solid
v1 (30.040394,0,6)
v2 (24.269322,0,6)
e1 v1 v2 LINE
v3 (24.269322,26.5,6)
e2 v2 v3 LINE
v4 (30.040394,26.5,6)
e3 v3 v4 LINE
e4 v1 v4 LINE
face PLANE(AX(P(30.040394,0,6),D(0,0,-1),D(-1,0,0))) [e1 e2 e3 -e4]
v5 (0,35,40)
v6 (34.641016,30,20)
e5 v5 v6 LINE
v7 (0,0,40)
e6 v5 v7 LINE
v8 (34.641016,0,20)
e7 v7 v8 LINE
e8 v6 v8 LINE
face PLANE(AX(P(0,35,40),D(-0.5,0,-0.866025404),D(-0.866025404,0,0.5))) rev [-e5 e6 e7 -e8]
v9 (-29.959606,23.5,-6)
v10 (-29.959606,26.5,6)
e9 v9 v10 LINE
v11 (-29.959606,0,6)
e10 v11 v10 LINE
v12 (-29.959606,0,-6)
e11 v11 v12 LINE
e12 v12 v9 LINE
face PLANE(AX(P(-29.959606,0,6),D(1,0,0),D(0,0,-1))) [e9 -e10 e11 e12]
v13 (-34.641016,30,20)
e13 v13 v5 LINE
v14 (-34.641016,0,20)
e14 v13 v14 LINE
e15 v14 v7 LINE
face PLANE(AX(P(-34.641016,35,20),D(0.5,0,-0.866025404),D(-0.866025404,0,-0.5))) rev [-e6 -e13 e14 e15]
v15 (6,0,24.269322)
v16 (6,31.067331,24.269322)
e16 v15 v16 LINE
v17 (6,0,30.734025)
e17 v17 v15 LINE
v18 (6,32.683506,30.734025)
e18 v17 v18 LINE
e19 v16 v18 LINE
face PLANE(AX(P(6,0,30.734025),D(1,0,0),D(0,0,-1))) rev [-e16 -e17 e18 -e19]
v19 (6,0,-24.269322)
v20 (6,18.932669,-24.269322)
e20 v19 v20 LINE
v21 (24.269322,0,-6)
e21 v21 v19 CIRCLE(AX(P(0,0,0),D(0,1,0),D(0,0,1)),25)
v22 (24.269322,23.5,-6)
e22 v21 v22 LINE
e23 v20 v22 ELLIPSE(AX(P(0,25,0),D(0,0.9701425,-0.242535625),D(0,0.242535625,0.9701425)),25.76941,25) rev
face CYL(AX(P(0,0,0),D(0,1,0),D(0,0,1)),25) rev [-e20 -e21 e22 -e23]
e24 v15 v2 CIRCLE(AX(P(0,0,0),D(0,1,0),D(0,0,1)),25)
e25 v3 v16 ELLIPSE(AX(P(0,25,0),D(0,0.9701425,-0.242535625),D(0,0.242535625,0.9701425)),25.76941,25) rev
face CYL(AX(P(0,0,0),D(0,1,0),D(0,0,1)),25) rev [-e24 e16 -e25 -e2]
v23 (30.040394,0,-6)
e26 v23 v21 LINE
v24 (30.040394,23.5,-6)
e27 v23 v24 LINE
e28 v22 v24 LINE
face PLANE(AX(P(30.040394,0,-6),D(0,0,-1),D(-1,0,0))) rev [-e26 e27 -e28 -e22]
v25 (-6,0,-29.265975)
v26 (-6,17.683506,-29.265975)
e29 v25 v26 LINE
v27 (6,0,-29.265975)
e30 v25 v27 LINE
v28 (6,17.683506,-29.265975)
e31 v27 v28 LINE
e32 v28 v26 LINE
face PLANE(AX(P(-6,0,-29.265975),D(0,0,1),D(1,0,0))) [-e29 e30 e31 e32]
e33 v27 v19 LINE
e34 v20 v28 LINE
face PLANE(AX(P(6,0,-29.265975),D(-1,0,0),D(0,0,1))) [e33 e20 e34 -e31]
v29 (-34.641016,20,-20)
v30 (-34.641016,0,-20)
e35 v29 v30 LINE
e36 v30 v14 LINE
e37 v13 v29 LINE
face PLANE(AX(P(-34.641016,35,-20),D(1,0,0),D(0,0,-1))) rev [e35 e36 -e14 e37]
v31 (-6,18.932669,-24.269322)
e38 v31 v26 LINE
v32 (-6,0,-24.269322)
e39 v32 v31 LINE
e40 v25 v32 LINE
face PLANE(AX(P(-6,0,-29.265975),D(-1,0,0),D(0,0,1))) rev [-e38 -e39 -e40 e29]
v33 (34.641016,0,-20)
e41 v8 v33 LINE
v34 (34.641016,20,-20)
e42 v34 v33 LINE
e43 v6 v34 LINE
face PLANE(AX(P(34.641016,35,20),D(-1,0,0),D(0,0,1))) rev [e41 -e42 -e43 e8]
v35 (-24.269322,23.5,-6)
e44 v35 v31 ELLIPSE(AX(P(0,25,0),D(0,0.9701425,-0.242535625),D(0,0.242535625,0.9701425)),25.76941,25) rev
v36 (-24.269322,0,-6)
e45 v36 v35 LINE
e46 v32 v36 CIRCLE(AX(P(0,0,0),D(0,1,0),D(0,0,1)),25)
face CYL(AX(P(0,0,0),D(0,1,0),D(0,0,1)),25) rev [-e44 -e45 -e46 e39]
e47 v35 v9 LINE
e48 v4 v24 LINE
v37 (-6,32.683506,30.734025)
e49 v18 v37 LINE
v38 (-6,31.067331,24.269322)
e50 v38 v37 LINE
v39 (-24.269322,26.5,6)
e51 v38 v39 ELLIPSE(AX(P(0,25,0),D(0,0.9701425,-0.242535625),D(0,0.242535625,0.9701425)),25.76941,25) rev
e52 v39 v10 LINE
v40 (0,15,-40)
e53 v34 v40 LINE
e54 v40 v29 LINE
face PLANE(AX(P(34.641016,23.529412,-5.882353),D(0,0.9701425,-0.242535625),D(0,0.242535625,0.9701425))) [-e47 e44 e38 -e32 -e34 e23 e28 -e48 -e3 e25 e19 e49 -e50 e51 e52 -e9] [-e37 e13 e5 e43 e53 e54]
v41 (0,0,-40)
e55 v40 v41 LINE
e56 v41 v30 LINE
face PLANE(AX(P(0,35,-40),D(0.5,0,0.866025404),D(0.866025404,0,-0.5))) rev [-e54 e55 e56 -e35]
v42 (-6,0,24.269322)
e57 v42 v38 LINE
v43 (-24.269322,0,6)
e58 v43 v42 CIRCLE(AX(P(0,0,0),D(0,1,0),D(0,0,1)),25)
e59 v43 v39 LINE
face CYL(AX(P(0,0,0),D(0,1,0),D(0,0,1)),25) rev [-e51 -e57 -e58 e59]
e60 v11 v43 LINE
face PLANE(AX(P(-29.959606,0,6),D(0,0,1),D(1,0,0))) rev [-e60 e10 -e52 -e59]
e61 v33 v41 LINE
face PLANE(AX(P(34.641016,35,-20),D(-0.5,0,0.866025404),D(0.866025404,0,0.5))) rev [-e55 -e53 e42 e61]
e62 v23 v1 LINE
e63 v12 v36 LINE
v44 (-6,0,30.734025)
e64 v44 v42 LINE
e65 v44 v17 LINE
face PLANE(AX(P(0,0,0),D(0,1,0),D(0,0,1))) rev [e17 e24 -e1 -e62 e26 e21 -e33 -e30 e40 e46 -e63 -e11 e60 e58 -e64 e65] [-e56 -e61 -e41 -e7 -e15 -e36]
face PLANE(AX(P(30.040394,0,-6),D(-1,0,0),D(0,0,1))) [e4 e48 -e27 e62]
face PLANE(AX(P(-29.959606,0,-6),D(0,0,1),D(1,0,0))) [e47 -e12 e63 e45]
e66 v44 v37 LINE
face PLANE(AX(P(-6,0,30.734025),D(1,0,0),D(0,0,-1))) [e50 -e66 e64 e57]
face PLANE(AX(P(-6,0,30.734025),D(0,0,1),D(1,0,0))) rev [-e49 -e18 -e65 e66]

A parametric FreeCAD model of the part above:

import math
import FreeCAD as App
import Part
import Sketcher
from FreeCAD import Vector
Q = App.Units.Quantity


def add_polygon(sketch, points):
    """Adds a closed chain of lines whose ends are joined by coincident constraints."""
    first, n = sketch.GeometryCount, len(points)
    for a, b in zip(points, points[1:] + points[:1]):
        sketch.addGeometry(Part.LineSegment(App.Vector(*a, 0), App.Vector(*b, 0)), False)
    for i in range(n):
        sketch.addConstraint(Sketcher.Constraint("Coincident", first + i, 2, first + (i + 1) % n, 1))

doc = App.newDocument("Part")
body = doc.addObject("PartDesign::Body", "Body")

sketch1 = doc.addObject("Sketcher::SketchObject", "Sketch")
body.addObject(sketch1)
sketch1.AttachmentSupport = (doc.XZ_Plane, [""])
sketch1.MapMode = "FlatFace"
add_polygon(sketch1, [(0, -40), (-35, -20), (-35, 20), (0, 40), (35, 20), (35, -20)])
sketch1.addConstraint(Sketcher.Constraint("Vertical", 1))
sketch1.addConstraint(Sketcher.Constraint("Vertical", 4))
sketch1.addConstraint(Sketcher.Constraint("Symmetric", 0, 2, 3, 2, -1, 1))
sketch1.addConstraint(Sketcher.Constraint("Symmetric", 2, 2, 5, 2, -1, 1))
sketch1.addConstraint(Sketcher.Constraint("PointOnObject", 2, 2, -2))
sketch1.addConstraint(Sketcher.Constraint("Parallel", 2, 5))
sketch1.addConstraint(Sketcher.Constraint("Horizontal", 1, 2, 3, 2))
sketch1.addConstraint(Sketcher.Constraint("DistanceY", 1, 1, 1, 2, 40.0))
sketch1.addConstraint(Sketcher.Constraint("Angle", 0, Q("150 deg")))
sketch1.addConstraint(Sketcher.Constraint("Distance", 0, 40.0))
pad1 = doc.addObject("PartDesign::Pad", "Pad")
body.addObject(pad1)
pad1.Profile = sketch1
pad1.Length = 35
pad1.Reversed = True

sketch2 = doc.addObject("Sketcher::SketchObject", "Sketch001")
body.addObject(sketch2)
sketch2.AttachmentSupport = (doc.XZ_Plane, [""])
sketch2.MapMode = "FlatFace"
sketch2.AttachmentOffset = App.Placement(Vector(0, 0, -35), App.Rotation())
sketch2.addGeometry(Part.LineSegment(Vector(6, -29.3, 0), Vector(-6, -29.3, 0)), False)
sketch2.addGeometry(Part.LineSegment(Vector(-6, -29.3, 0), Vector(-6, -24.3, 0)), False)
sketch2.addGeometry(Part.ArcOfCircle(Part.Circle(Vector(0, 0, 0), Vector(0, 0, 1), 25), math.radians(-166), math.radians(-104)), False)
sketch2.addGeometry(Part.LineSegment(Vector(-24.3, -6, 0), Vector(-30, -6, 0)), False)
sketch2.addGeometry(Part.LineSegment(Vector(-30, -6, 0), Vector(-30, 6, 0)), False)
sketch2.addGeometry(Part.LineSegment(Vector(-30, 6, 0), Vector(-24.3, 6, 0)), False)
sketch2.addGeometry(Part.ArcOfCircle(Part.Circle(Vector(0, 0, 0), Vector(0, 0, 1), 25), math.radians(104), math.radians(166)), False)
sketch2.addGeometry(Part.LineSegment(Vector(-6, 24.3, 0), Vector(-6, 30.7, 0)), False)
sketch2.addGeometry(Part.LineSegment(Vector(-6, 30.7, 0), Vector(6, 30.7, 0)), False)
sketch2.addGeometry(Part.LineSegment(Vector(6, 30.7, 0), Vector(6, 24.3, 0)), False)
sketch2.addGeometry(Part.ArcOfCircle(Part.Circle(Vector(0, 0, 0), Vector(0, 0, 1), 25), math.radians(14), math.radians(76)), False)
sketch2.addGeometry(Part.LineSegment(Vector(24.3, 6, 0), Vector(30, 6, 0)), False)
sketch2.addGeometry(Part.LineSegment(Vector(30, 6, 0), Vector(30, -6, 0)), False)
sketch2.addGeometry(Part.LineSegment(Vector(30, -6, 0), Vector(24.3, -6, 0)), False)
sketch2.addGeometry(Part.ArcOfCircle(Part.Circle(Vector(0, 0, 0), Vector(0, 0, 1), 25), math.radians(-76), math.radians(-14)), False)
sketch2.addGeometry(Part.LineSegment(Vector(6, -24.3, 0), Vector(6, -29.3, 0)), False)
sketch2.addConstraint(Sketcher.Constraint("Coincident", 0, 2, 1, 1))
sketch2.addConstraint(Sketcher.Constraint("Coincident", 1, 2, 2, 2))
sketch2.addConstraint(Sketcher.Constraint("Coincident", 2, 1, 3, 1))
sketch2.addConstraint(Sketcher.Constraint("Coincident", 3, 2, 4, 1))
sketch2.addConstraint(Sketcher.Constraint("Coincident", 4, 2, 5, 1))
sketch2.addConstraint(Sketcher.Constraint("Coincident", 5, 2, 6, 2))
sketch2.addConstraint(Sketcher.Constraint("Coincident", 6, 1, 7, 1))
sketch2.addConstraint(Sketcher.Constraint("Coincident", 7, 2, 8, 1))
sketch2.addConstraint(Sketcher.Constraint("Coincident", 8, 2, 9, 1))
sketch2.addConstraint(Sketcher.Constraint("Coincident", 9, 2, 10, 2))
sketch2.addConstraint(Sketcher.Constraint("Coincident", 10, 1, 11, 1))
sketch2.addConstraint(Sketcher.Constraint("Coincident", 11, 2, 12, 1))
sketch2.addConstraint(Sketcher.Constraint("Coincident", 12, 2, 13, 1))
sketch2.addConstraint(Sketcher.Constraint("Coincident", 13, 2, 14, 2))
sketch2.addConstraint(Sketcher.Constraint("Coincident", 14, 1, 15, 1))
sketch2.addConstraint(Sketcher.Constraint("Coincident", 15, 2, 0, 1))
sketch2.addConstraint(Sketcher.Constraint("Horizontal", 0))
sketch2.addConstraint(Sketcher.Constraint("Vertical", 1))
sketch2.addConstraint(Sketcher.Constraint("Horizontal", 3))
sketch2.addConstraint(Sketcher.Constraint("Vertical", 4))
sketch2.addConstraint(Sketcher.Constraint("Horizontal", 5))
sketch2.addConstraint(Sketcher.Constraint("Vertical", 7))
sketch2.addConstraint(Sketcher.Constraint("Horizontal", 8))
sketch2.addConstraint(Sketcher.Constraint("Vertical", 9))
sketch2.addConstraint(Sketcher.Constraint("Horizontal", 11))
sketch2.addConstraint(Sketcher.Constraint("Vertical", 12))
sketch2.addConstraint(Sketcher.Constraint("Horizontal", 13))
sketch2.addConstraint(Sketcher.Constraint("Vertical", 15))
sketch2.addConstraint(Sketcher.Constraint("Coincident", 2, 3, -1, 1))
sketch2.addConstraint(Sketcher.Constraint("Coincident", 6, 3, -1, 1))
sketch2.addConstraint(Sketcher.Constraint("Coincident", 10, 3, -1, 1))
sketch2.addConstraint(Sketcher.Constraint("Coincident", 14, 3, -1, 1))
sketch2.addConstraint(Sketcher.Constraint("Equal", 2, 6))
sketch2.addConstraint(Sketcher.Constraint("Equal", 6, 10))
sketch2.addConstraint(Sketcher.Constraint("Equal", 10, 14))
sketch2.addConstraint(Sketcher.Constraint("Horizontal", 6, 1, 9, 2))
sketch2.addConstraint(Sketcher.Constraint("Horizontal", 5, 2, 10, 1))
sketch2.addConstraint(Sketcher.Constraint("Horizontal", 3, 2, 12, 2))
sketch2.addConstraint(Sketcher.Constraint("Horizontal", 1, 2, 14, 1))
sketch2.addConstraint(Sketcher.Constraint("Vertical", 2, 1, 5, 2))
sketch2.addConstraint(Sketcher.Constraint("Vertical", 1, 2, 6, 1))
sketch2.addConstraint(Sketcher.Constraint("Equal", 8, 4))
sketch2.addConstraint(Sketcher.Constraint("Radius", 2, 25.0))
sketch2.addConstraint(Sketcher.Constraint("DistanceX", 0, 2, 0, 1, 12.0))
sketch2.addConstraint(Sketcher.Constraint("DistanceX", 11, 1, 11, 2, 5.771071))
sketch2.addConstraint(Sketcher.Constraint("DistanceX", 3, 2, 3, 1, 5.690284))
sketch2.addConstraint(Sketcher.Constraint("DistanceY", 1, 1, 1, 2, 4.996653))
sketch2.addConstraint(Sketcher.Constraint("DistanceY", 7, 1, 7, 2, 6.464703))
pocket1 = doc.addObject("PartDesign::Pocket", "Pocket")
body.addObject(pocket1)
pocket1.Profile = sketch2
pocket1.Type = "ThroughAll"
pocket1.Midplane = True

sketch3 = doc.addObject("Sketcher::SketchObject", "Sketch002")
body.addObject(sketch3)
sketch3.AttachmentSupport = (doc.YZ_Plane, [""])
sketch3.MapMode = "FlatFace"
sketch3.AttachmentOffset = App.Placement(Vector(0, 0, -34.641016), App.Rotation())
add_polygon(sketch3, [(15, -40), (35, 40), (35, -40)])
sketch3.addConstraint(Sketcher.Constraint("Vertical", 1))
sketch3.addConstraint(Sketcher.Constraint("Horizontal", 2))
sketch3.addConstraint(Sketcher.Constraint("DistanceX", 2, 2, 2, 1, 20.0))
sketch3.addConstraint(Sketcher.Constraint("DistanceY", 1, 2, 1, 1, 80.0))
sketch3.addConstraint(Sketcher.Constraint("DistanceX", -1, 1, 0, 2, 35.0))
sketch3.addConstraint(Sketcher.Constraint("DistanceY", -1, 1, 0, 2, 40.0))
pocket2 = doc.addObject("PartDesign::Pocket", "Pocket001")
body.addObject(pocket2)
pocket2.Profile = sketch3
pocket2.Type = "ThroughAll"
pocket2.Midplane = True

doc.recompute()
